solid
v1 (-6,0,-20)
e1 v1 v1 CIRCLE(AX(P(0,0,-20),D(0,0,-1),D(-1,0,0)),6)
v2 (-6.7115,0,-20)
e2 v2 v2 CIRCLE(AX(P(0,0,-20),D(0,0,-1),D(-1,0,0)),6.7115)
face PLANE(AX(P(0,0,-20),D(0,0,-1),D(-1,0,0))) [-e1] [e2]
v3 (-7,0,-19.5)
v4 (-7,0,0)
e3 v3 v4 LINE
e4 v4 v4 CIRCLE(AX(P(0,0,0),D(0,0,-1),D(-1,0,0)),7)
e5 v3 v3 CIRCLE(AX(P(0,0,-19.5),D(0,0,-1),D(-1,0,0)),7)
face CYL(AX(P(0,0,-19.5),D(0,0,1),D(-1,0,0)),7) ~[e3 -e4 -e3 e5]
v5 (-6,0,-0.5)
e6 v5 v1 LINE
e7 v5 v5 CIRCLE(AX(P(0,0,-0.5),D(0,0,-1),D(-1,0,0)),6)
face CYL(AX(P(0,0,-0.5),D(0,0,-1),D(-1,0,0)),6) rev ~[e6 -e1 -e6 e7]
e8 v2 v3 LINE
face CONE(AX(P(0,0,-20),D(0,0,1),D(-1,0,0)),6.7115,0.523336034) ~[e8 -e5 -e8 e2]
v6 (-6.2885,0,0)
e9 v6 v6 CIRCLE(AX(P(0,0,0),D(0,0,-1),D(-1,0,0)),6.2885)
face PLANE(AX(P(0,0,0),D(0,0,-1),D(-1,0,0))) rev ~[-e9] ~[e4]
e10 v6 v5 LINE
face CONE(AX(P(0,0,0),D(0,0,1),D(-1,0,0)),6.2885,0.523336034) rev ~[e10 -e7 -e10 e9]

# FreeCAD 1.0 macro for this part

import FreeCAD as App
import Part
import Sketcher
Q = App.Units.Quantity


def add_polygon(sketch, points):
    """Adds a closed chain of lines whose ends are joined by coincident constraints."""
    first, n = sketch.GeometryCount, len(points)
    for a, b in zip(points, points[1:] + points[:1]):
        sketch.addGeometry(Part.LineSegment(App.Vector(*a, 0), App.Vector(*b, 0)), False)
    for i in range(n):
        sketch.addConstraint(Sketcher.Constraint("Coincident", first + i, 2, first + (i + 1) % n, 1))

doc = App.newDocument("Part")
body = doc.addObject("PartDesign::Body", "Body")

# Sketch on XZ plane
sketch1 = body.newObject("Sketcher::SketchObject", "Sketch")
sketch1.AttachmentSupport = (doc.getObject("XZ_Plane"), [""])
sketch1.MapMode = "FlatFace"
add_polygon(sketch1, [(-6, -20), (-6.7, -20), (-7, -19.5), (-7, 0), (-6.3, 0), (-6, -0.5)])  # lines 0-5
sketch1.addConstraint([
    Sketcher.Constraint("Horizontal", 0),
    Sketcher.Constraint("Vertical", 2),
    Sketcher.Constraint("Horizontal", 3),
    Sketcher.Constraint("Vertical", 5),
    Sketcher.Constraint("PointOnObject", 2, 2, -1),
    Sketcher.Constraint("Parallel", 1, 4),
    Sketcher.Constraint("Equal", 0, 3),
    Sketcher.Constraint("DistanceY", 0, 2, -1, 1, Q("20 mm")),
    Sketcher.Constraint("DistanceX", 1, 2, -1, 1, Q("7 mm")),
    Sketcher.Constraint("DistanceX", 4, 2, -1, 1, Q("6 mm")),
    Sketcher.Constraint("DistanceY", 4, 2, -1, 1, Q("0.5 mm")),
    Sketcher.Constraint("DistanceX", 0, 2, -1, 1, Q("6.7115 mm")),
])
revolution = body.newObject("PartDesign::Revolution", "Revolution")
revolution.Profile = sketch1
revolution.ReferenceAxis = (sketch1, ["V_Axis"])
revolution.Angle = 360

doc.recompute()
